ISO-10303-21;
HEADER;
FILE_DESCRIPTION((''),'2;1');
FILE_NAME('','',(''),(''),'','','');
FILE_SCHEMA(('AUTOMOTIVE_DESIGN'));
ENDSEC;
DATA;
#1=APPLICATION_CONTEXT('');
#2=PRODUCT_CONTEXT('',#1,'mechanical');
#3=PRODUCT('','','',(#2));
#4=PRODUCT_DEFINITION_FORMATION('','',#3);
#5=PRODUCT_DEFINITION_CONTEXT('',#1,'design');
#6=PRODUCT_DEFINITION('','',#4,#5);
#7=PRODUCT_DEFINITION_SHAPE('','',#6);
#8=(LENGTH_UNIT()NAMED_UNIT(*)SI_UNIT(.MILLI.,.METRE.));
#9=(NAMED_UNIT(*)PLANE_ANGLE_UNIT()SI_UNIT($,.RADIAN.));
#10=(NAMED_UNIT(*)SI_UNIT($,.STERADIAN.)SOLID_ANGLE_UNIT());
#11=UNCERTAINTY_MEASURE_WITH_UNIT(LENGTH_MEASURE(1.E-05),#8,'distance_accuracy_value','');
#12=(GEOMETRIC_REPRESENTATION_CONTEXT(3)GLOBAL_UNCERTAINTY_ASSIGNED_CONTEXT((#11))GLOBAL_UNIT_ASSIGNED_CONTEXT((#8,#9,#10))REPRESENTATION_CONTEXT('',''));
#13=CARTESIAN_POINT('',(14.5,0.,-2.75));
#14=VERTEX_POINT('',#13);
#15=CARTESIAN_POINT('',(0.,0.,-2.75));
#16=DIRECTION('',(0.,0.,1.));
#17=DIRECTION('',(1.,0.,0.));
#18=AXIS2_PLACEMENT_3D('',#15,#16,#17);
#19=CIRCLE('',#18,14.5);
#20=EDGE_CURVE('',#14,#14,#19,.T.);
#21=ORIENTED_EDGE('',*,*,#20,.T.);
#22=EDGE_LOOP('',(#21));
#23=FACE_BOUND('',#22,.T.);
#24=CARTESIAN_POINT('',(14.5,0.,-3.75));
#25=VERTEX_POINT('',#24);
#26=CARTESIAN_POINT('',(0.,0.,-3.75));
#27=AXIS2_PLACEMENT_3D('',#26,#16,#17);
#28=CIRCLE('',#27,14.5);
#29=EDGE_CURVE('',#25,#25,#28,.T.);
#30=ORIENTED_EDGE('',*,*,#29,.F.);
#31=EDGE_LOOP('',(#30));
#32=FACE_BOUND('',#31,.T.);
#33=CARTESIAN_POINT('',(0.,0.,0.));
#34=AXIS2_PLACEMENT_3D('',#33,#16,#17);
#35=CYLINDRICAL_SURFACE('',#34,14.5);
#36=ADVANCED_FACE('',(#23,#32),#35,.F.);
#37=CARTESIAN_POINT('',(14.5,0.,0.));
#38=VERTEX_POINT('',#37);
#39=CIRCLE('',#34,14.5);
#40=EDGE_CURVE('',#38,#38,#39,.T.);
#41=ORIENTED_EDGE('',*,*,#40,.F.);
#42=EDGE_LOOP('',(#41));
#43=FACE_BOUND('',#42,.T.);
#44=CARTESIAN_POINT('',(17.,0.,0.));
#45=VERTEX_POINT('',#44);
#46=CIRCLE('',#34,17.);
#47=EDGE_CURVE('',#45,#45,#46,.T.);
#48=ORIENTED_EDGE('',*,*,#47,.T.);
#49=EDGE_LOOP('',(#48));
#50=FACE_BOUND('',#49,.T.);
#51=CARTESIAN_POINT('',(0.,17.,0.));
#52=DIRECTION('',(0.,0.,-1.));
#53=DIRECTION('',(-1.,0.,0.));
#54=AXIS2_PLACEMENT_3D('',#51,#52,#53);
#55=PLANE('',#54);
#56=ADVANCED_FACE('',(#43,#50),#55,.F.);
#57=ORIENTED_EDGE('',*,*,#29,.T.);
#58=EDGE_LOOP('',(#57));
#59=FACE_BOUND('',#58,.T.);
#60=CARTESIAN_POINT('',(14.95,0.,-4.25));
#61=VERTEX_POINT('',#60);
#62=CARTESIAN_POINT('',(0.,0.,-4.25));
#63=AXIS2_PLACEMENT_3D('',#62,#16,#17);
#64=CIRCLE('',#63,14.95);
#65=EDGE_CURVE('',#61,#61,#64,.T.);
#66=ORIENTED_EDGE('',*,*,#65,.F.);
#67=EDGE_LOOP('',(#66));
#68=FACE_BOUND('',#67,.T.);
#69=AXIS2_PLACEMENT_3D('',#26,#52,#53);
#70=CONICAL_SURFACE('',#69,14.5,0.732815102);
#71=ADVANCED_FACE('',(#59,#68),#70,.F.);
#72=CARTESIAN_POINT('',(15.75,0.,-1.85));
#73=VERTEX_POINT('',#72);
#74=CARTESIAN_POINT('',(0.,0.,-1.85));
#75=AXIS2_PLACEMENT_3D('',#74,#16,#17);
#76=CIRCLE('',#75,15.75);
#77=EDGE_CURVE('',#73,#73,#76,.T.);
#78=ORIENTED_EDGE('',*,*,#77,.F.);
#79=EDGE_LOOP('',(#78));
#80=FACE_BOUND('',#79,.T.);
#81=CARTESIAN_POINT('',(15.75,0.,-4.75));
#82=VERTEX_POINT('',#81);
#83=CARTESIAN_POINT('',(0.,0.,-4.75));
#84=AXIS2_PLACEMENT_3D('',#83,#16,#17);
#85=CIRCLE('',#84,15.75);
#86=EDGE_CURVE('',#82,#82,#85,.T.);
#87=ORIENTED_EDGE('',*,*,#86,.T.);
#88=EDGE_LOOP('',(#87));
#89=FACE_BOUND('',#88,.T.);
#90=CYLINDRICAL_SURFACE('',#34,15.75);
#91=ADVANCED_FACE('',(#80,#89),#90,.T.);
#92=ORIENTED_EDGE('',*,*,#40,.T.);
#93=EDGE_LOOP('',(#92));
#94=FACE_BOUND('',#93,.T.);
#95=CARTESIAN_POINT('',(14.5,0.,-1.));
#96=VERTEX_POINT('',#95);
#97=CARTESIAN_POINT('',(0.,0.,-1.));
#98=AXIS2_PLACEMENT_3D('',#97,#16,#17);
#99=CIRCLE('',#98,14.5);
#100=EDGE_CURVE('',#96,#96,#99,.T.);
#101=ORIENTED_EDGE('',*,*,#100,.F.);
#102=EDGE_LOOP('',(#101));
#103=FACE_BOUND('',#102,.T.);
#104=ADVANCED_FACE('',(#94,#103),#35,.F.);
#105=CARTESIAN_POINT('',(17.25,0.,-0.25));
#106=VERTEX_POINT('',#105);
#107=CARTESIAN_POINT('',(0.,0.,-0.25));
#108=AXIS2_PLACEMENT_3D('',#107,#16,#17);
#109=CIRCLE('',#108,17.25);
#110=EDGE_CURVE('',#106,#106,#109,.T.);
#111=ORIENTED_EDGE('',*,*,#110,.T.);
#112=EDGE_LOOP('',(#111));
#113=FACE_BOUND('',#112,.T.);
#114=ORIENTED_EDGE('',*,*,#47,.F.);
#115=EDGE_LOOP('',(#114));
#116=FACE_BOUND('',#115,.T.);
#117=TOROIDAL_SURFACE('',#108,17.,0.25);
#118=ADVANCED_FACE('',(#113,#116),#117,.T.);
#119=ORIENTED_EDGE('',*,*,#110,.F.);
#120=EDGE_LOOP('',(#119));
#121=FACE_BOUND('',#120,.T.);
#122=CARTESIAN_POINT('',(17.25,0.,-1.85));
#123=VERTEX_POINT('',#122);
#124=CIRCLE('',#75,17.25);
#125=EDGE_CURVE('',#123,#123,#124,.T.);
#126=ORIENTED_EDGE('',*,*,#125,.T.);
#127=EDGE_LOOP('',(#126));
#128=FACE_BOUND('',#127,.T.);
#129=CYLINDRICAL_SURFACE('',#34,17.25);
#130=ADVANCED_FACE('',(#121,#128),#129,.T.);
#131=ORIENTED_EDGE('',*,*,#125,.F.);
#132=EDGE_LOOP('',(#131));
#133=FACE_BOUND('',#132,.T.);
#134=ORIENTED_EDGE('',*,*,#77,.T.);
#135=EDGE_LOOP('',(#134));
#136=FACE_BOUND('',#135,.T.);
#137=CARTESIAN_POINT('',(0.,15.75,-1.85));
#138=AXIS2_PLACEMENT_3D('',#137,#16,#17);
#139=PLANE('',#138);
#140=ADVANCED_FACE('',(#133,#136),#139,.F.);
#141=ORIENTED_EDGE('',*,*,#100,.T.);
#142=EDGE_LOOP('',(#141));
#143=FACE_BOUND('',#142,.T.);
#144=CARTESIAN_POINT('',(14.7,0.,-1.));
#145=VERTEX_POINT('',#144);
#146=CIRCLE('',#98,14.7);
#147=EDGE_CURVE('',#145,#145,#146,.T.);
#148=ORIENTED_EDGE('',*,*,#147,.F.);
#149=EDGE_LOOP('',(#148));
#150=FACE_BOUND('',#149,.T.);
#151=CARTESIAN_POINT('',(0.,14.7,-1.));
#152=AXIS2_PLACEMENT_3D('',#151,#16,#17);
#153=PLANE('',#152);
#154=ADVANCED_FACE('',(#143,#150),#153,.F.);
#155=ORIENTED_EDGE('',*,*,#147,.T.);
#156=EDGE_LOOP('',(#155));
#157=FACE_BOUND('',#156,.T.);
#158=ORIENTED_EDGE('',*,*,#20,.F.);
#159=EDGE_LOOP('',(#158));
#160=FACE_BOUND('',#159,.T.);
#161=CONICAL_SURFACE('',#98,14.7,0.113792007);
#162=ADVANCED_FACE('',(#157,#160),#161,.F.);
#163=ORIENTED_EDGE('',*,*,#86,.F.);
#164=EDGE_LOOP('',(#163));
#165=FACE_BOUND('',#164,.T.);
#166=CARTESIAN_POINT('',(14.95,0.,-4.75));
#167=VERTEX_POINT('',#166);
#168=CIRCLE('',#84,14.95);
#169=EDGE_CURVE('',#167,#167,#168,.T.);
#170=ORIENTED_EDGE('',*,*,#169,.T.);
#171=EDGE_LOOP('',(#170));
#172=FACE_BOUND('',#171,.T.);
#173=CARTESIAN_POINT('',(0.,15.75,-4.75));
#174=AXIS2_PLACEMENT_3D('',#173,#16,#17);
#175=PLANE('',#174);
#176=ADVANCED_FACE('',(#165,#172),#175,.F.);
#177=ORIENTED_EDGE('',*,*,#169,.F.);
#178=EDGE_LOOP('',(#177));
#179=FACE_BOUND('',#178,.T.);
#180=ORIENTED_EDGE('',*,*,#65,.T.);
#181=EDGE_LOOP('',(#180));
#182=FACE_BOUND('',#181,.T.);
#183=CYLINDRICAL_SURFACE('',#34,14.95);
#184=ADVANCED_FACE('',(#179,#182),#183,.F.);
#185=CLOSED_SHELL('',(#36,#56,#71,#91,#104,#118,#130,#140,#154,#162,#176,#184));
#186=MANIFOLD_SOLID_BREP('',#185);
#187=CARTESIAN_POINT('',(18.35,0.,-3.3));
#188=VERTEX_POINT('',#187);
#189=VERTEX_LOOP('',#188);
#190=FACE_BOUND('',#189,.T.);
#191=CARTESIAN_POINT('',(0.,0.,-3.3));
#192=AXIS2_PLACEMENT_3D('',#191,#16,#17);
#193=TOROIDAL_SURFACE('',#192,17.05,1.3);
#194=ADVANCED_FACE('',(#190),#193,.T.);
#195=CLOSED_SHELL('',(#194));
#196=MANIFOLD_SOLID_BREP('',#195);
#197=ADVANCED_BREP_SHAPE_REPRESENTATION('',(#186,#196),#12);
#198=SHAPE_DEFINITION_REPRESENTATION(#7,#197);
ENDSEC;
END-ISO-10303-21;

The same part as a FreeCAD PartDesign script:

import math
import FreeCAD as App
import Part
import Sketcher

doc = App.newDocument("Part")
body = doc.addObject("PartDesign::Body", "Body")

# Sketch on YZ plane
sketch1 = body.newObject("Sketcher::SketchObject", "Sketch")
sketch1.AttachmentSupport = (doc.getObject("YZ_Plane"), [""])
sketch1.MapMode = "FlatFace"
sketch1.addGeometry([
    Part.LineSegment(App.Vector(17.25, -1.85, 0), App.Vector(17.25, -0.25, 0)),  # 0
    Part.ArcOfCircle(Part.Circle(App.Vector(17, -0.25, 0), App.Vector(0, 0, 1), 0.25), math.radians(0), math.radians(90)),  # 1
    Part.LineSegment(App.Vector(17, 0, 0), App.Vector(14.5, 0, 0)),  # 2
    Part.LineSegment(App.Vector(14.5, 0, 0), App.Vector(14.5, -1, 0)),  # 3
    Part.LineSegment(App.Vector(14.5, -1, 0), App.Vector(14.7, -1, 0)),  # 4
    Part.LineSegment(App.Vector(14.7, -1, 0), App.Vector(14.5, -2.75, 0)),  # 5
    Part.LineSegment(App.Vector(14.5, -2.75, 0), App.Vector(14.5, -3.75, 0)),  # 6
    Part.LineSegment(App.Vector(14.5, -3.75, 0), App.Vector(14.95, -4.25, 0)),  # 7
    Part.LineSegment(App.Vector(14.95, -4.25, 0), App.Vector(14.95, -4.75, 0)),  # 8
    Part.LineSegment(App.Vector(14.95, -4.75, 0), App.Vector(15.75, -4.75, 0)),  # 9
    Part.LineSegment(App.Vector(15.75, -4.75, 0), App.Vector(15.75, -1.85, 0)),  # 10
    Part.LineSegment(App.Vector(15.75, -1.85, 0), App.Vector(17.25, -1.85, 0)),  # 11
], False)
sketch1.addConstraint([
    Sketcher.Constraint("Tangent", 0, 2, 1, 1),
    Sketcher.Constraint("Tangent", 1, 2, 2, 1),
    Sketcher.Constraint("Coincident", 2, 2, 3, 1),
    Sketcher.Constraint("Coincident", 3, 2, 4, 1),
    Sketcher.Constraint("Coincident", 4, 2, 5, 1),
    Sketcher.Constraint("Coincident", 5, 2, 6, 1),
    Sketcher.Constraint("Coincident", 6, 2, 7, 1),
    Sketcher.Constraint("Coincident", 7, 2, 8, 1),
    Sketcher.Constraint("Coincident", 8, 2, 9, 1),
    Sketcher.Constraint("Coincident", 9, 2, 10, 1),
    Sketcher.Constraint("Coincident", 10, 2, 11, 1),
    Sketcher.Constraint("Coincident", 11, 2, 0, 1),
    Sketcher.Constraint("Vertical", 0),
    Sketcher.Constraint("Horizontal", 2),
    Sketcher.Constraint("Vertical", 3),
    Sketcher.Constraint("Horizontal", 4),
    Sketcher.Constraint("Vertical", 6),
    Sketcher.Constraint("Vertical", 8),
    Sketcher.Constraint("Horizontal", 9),
    Sketcher.Constraint("Vertical", 10),
    Sketcher.Constraint("Horizontal", 11),
    Sketcher.Constraint("PointOnObject", 1, 2, -1),
    Sketcher.Constraint("Vertical", 3, 2, 5, 2),
    Sketcher.Constraint("Equal", 3, 6),
    Sketcher.Constraint("DistanceY", 3, 2, 3, 1, 1.0),
    Sketcher.Constraint("Radius", 1, 0.25),
    Sketcher.Constraint("DistanceX", 2, 2, 2, 1, 2.5),
    Sketcher.Constraint("DistanceX", 4, 1, 4, 2, 0.2),
    Sketcher.Constraint("DistanceX", 9, 1, 9, 2, 0.8),
    Sketcher.Constraint("DistanceX", 11, 1, 11, 2, 1.5),
    Sketcher.Constraint("DistanceY", 0, 1, 0, 2, 1.6),
    Sketcher.Constraint("DistanceY", 8, 2, 8, 1, 0.5),
    Sketcher.Constraint("DistanceY", 10, 1, 10, 2, 2.9),
    Sketcher.Constraint("DistanceX", -1, 1, 1, 3, 17.0),
    Sketcher.Constraint("DistanceY", 8, 2, 6, 2, 1.0),
])
revolution = body.newObject("PartDesign::Revolution", "Revolution")
revolution.Profile = sketch1
revolution.ReferenceAxis = (sketch1, ["V_Axis"])
revolution.Angle = 360
body2 = doc.addObject("PartDesign::Body", "Body001")

# Sketch on YZ plane
sketch2 = body2.newObject("Sketcher::SketchObject", "Sketch001")
sketch2.AttachmentSupport = (doc.getObject("YZ_Plane001"), [""])
sketch2.MapMode = "FlatFace"
sketch2.addGeometry(Part.Circle(App.Vector(17.1, -3.3, 0), App.Vector(0, 0, 1), 1.3), False)
sketch2.addConstraint([
    Sketcher.Constraint("Diameter", 0, 2.6),
    Sketcher.Constraint("DistanceY", 0, 3, -1, 1, 3.3),
    Sketcher.Constraint("DistanceX", -1, 1, 0, 3, 17.05),
])
revolution2 = body2.newObject("PartDesign::Revolution", "Revolution001")
revolution2.Profile = sketch2
revolution2.ReferenceAxis = (sketch2, ["V_Axis"])
revolution2.Angle = 360

doc.recompute()
